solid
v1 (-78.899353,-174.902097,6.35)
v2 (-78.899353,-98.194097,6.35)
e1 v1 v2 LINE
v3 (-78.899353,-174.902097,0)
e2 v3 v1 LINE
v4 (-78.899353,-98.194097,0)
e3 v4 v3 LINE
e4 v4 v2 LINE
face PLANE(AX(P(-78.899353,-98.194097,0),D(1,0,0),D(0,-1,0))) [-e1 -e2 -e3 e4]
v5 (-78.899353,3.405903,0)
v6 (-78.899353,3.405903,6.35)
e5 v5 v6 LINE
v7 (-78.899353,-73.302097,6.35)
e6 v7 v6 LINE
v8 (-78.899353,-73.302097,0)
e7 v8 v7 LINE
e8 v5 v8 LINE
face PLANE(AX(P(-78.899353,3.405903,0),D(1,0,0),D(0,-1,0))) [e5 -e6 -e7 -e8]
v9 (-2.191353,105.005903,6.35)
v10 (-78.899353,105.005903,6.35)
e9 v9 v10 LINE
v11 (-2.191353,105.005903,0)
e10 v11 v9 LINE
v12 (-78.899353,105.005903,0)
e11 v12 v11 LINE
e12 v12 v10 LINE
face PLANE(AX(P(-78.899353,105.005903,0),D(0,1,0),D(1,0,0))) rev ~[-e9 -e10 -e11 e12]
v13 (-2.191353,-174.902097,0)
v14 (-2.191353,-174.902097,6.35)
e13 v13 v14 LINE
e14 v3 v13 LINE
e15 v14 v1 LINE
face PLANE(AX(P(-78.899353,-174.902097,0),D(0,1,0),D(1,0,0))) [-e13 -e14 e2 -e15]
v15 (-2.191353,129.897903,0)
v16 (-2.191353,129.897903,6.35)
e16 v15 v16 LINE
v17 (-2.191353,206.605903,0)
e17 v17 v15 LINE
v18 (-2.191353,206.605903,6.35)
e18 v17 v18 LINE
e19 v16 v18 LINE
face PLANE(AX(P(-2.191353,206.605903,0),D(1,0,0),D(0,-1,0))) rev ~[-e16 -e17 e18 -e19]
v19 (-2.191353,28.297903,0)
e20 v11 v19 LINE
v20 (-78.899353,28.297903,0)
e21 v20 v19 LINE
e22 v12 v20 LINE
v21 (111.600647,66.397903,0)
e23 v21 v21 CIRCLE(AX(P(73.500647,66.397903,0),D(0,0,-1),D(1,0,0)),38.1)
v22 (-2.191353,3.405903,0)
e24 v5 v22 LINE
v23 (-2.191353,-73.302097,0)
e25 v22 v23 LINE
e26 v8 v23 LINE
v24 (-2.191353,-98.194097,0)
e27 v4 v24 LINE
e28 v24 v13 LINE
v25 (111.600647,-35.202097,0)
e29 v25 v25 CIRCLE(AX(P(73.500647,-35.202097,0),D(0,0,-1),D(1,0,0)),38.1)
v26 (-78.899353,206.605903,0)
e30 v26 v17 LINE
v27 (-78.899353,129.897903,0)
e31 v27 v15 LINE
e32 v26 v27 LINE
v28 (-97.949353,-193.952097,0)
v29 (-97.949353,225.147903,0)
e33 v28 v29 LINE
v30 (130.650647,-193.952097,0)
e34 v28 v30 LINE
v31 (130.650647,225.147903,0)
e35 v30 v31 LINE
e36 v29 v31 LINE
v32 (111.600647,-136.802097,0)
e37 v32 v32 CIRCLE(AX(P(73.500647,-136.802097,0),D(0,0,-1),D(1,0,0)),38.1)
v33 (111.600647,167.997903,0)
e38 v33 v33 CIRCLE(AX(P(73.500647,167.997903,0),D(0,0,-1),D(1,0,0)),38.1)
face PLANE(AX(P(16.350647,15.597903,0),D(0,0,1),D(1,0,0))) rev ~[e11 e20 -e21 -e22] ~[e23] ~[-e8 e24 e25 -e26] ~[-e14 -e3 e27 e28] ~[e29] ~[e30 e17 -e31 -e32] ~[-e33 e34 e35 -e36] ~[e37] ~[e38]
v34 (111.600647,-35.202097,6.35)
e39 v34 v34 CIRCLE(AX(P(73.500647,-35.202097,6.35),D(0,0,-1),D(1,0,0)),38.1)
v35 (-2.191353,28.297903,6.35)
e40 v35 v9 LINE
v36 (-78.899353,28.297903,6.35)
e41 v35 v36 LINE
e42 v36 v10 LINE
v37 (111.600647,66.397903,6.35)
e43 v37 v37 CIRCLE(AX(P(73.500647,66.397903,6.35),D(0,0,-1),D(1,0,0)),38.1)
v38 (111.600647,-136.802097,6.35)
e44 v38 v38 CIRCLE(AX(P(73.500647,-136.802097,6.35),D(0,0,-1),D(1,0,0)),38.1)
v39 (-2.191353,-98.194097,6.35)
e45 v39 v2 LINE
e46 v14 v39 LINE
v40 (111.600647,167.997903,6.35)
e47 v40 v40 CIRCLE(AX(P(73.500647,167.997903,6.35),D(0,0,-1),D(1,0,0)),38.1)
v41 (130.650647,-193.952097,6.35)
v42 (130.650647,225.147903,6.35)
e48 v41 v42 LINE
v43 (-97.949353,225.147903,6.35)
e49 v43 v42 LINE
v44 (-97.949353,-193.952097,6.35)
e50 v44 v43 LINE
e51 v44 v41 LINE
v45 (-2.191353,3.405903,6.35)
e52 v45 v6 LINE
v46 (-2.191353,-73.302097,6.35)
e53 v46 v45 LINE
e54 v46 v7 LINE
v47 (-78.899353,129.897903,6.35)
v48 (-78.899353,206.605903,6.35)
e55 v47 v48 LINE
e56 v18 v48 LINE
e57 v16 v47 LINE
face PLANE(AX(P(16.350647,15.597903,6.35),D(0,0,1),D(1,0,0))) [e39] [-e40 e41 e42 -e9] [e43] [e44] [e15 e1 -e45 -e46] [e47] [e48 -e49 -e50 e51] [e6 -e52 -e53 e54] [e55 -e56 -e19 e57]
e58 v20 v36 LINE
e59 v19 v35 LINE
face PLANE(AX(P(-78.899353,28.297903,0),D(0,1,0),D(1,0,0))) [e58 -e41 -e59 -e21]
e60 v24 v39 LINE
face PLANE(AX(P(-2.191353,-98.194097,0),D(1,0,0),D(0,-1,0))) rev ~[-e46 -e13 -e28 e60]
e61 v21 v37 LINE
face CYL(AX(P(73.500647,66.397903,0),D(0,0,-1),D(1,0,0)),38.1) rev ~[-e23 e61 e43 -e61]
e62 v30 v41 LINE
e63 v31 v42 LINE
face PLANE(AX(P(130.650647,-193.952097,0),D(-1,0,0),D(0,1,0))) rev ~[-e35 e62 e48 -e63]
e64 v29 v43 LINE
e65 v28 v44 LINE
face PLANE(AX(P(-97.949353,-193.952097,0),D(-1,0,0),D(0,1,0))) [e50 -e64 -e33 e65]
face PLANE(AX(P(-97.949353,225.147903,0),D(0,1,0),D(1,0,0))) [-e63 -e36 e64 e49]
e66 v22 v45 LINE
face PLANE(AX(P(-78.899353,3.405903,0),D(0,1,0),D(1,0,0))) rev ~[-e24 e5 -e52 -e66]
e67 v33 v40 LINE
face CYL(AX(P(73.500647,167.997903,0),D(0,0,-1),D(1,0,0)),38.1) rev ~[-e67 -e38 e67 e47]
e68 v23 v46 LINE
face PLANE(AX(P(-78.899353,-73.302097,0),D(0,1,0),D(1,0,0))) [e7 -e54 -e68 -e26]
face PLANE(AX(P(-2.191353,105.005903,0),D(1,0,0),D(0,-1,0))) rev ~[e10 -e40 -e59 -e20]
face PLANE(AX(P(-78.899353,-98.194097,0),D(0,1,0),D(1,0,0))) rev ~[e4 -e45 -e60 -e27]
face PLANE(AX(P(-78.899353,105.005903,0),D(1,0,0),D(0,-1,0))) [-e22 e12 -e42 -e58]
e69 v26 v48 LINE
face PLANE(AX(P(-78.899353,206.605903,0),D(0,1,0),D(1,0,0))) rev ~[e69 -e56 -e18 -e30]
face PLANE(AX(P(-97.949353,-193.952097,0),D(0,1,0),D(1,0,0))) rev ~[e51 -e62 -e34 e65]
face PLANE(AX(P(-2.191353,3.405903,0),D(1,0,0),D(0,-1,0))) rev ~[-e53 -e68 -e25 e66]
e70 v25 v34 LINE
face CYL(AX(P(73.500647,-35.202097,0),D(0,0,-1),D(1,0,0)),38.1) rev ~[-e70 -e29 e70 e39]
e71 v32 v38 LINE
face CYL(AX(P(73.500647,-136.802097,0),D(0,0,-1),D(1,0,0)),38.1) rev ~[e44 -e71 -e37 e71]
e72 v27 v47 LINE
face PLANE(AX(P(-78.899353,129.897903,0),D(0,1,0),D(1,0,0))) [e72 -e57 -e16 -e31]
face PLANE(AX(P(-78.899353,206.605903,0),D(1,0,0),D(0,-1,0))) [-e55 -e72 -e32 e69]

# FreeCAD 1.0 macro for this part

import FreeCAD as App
import Part
import Sketcher
from FreeCAD import Vector
Q = App.Units.Quantity

doc = App.newDocument("Part")
body = doc.addObject("PartDesign::Body", "Body")

# Sketch on XY plane
sketch1 = body.newObject("Sketcher::SketchObject", "Sketch")
sketch1.AttachmentSupport = (doc.getObject("XY_Plane"), [""])
sketch1.MapMode = "FlatFace"
sketch1.addGeometry([
    Part.LineSegment(Vector(-98, 225, 0), Vector(-98, -194, 0)),
    Part.LineSegment(Vector(-98, -194, 0), Vector(131, -194, 0)),
    Part.LineSegment(Vector(131, -194, 0), Vector(131, 225, 0)),
    Part.LineSegment(Vector(131, 225, 0), Vector(-98, 225, 0)),
], False)
sketch1.addConstraint([
    Sketcher.Constraint("Coincident", 0, 2, 1, 1),
    Sketcher.Constraint("Coincident", 1, 2, 2, 1),
    Sketcher.Constraint("Coincident", 2, 2, 3, 1),
    Sketcher.Constraint("Coincident", 3, 2, 0, 1),
    Sketcher.Constraint("Vertical", 0),
    Sketcher.Constraint("Horizontal", 1),
    Sketcher.Constraint("Vertical", 2),
    Sketcher.Constraint("Horizontal", 3),
    Sketcher.Constraint("DistanceX", 1, 1, 1, 2, Q("9 in")),
    Sketcher.Constraint("DistanceY", 0, 2, 0, 1, Q("16.5 in")),
    Sketcher.Constraint("DistanceX", 0, 2, -1, 1, 97.949353),
    Sketcher.Constraint("DistanceY", 0, 2, -1, 1, 193.952097),
])
pad1 = body.newObject("PartDesign::Pad", "Pad")
pad1.Profile = sketch1
pad1.Length = Q("0.25 in")

# Sketch on XY plane
sketch2 = body.newObject("Sketcher::SketchObject", "Sketch001")
sketch2.AttachmentSupport = (doc.getObject("XY_Plane"), [""])
sketch2.MapMode = "FlatFace"
sketch2.addGeometry([
    Part.LineSegment(Vector(-79, -175, 0), Vector(-79, -98, 0)),  # 0
    Part.LineSegment(Vector(-79, -98, 0), Vector(-2, -98, 0)),  # 1
    Part.LineSegment(Vector(-2, -98, 0), Vector(-2, -175, 0)),  # 2
    Part.LineSegment(Vector(-2, -175, 0), Vector(-79, -175, 0)),  # 3
    Part.LineSegment(Vector(-79, -73, 0), Vector(-79, 3, 0)),  # 4
    Part.LineSegment(Vector(-79, 3, 0), Vector(-2, 3, 0)),  # 5
    Part.LineSegment(Vector(-2, 3, 0), Vector(-2, -73, 0)),  # 6
    Part.LineSegment(Vector(-2, -73, 0), Vector(-79, -73, 0)),  # 7
    Part.LineSegment(Vector(-79, 28, 0), Vector(-79, 105, 0)),  # 8
    Part.LineSegment(Vector(-79, 105, 0), Vector(-2, 105, 0)),  # 9
    Part.LineSegment(Vector(-2, 105, 0), Vector(-2, 28, 0)),  # 10
    Part.LineSegment(Vector(-2, 28, 0), Vector(-79, 28, 0)),  # 11
    Part.LineSegment(Vector(-79, 130, 0), Vector(-79, 207, 0)),  # 12
    Part.LineSegment(Vector(-79, 207, 0), Vector(-2, 207, 0)),  # 13
    Part.LineSegment(Vector(-2, 207, 0), Vector(-2, 130, 0)),  # 14
    Part.LineSegment(Vector(-2, 130, 0), Vector(-79, 130, 0)),  # 15
], False)
sketch2.addConstraint([
    Sketcher.Constraint("Coincident", 0, 2, 1, 1),
    Sketcher.Constraint("Coincident", 1, 2, 2, 1),
    Sketcher.Constraint("Coincident", 2, 2, 3, 1),
    Sketcher.Constraint("Coincident", 3, 2, 0, 1),
    Sketcher.Constraint("Coincident", 4, 2, 5, 1),
    Sketcher.Constraint("Coincident", 5, 2, 6, 1),
    Sketcher.Constraint("Coincident", 6, 2, 7, 1),
    Sketcher.Constraint("Coincident", 7, 2, 4, 1),
    Sketcher.Constraint("Coincident", 8, 2, 9, 1),
    Sketcher.Constraint("Coincident", 9, 2, 10, 1),
    Sketcher.Constraint("Coincident", 10, 2, 11, 1),
    Sketcher.Constraint("Coincident", 11, 2, 8, 1),
    Sketcher.Constraint("Coincident", 12, 2, 13, 1),
    Sketcher.Constraint("Coincident", 13, 2, 14, 1),
    Sketcher.Constraint("Coincident", 14, 2, 15, 1),
    Sketcher.Constraint("Coincident", 15, 2, 12, 1),
    Sketcher.Constraint("Vertical", 0),
    Sketcher.Constraint("Horizontal", 1),
    Sketcher.Constraint("Vertical", 2),
    Sketcher.Constraint("Horizontal", 3),
    Sketcher.Constraint("Vertical", 4),
    Sketcher.Constraint("Horizontal", 5),
    Sketcher.Constraint("Vertical", 6),
    Sketcher.Constraint("Horizontal", 7),
    Sketcher.Constraint("Vertical", 8),
    Sketcher.Constraint("Horizontal", 9),
    Sketcher.Constraint("Vertical", 10),
    Sketcher.Constraint("Horizontal", 11),
    Sketcher.Constraint("Vertical", 12),
    Sketcher.Constraint("Horizontal", 13),
    Sketcher.Constraint("Vertical", 14),
    Sketcher.Constraint("Horizontal", 15),
    Sketcher.Constraint("Vertical", 3, 2, 4, 2),
    Sketcher.Constraint("Vertical", 2, 2, 5, 2),
    Sketcher.Constraint("Vertical", 7, 2, 8, 2),
    Sketcher.Constraint("Vertical", 6, 2, 9, 2),
    Sketcher.Constraint("Vertical", 11, 2, 12, 2),
    Sketcher.Constraint("Vertical", 10, 2, 13, 2),
    Sketcher.Constraint("Equal", 15, 0),
    Sketcher.Constraint("Equal", 2, 4),
    Sketcher.Constraint("Equal", 6, 8),
    Sketcher.Constraint("Equal", 10, 12),
    Sketcher.Constraint("DistanceY", 0, 2, 4, 2, Q("4 in")),
    Sketcher.Constraint("DistanceY", 4, 2, 8, 2, Q("4 in")),
    Sketcher.Constraint("DistanceY", 8, 2, 12, 2, Q("4 in")),
    Sketcher.Constraint("DistanceX", 1, 1, 1, 2, Q("3.02 in")),
    Sketcher.Constraint("DistanceX", 0, 2, -1, 1, 78.899353),
    Sketcher.Constraint("DistanceY", 0, 2, -1, 1, 98.194097),
])
pocket1 = body.newObject("PartDesign::Pocket", "Pocket")
pocket1.Profile = sketch2
pocket1.Length = Q("1 in")
pocket1.Reversed = True

# Sketch on XY plane
sketch3 = body.newObject("Sketcher::SketchObject", "Sketch002")
sketch3.AttachmentSupport = (doc.getObject("XY_Plane"), [""])
sketch3.MapMode = "FlatFace"
sketch3.addGeometry([
    Part.Circle(Vector(74, -137, 0), Vector(0, 0, 1), 38),
    Part.Circle(Vector(74, -35, 0), Vector(0, 0, 1), 38),
    Part.Circle(Vector(74, 66, 0), Vector(0, 0, 1), 38),
    Part.Circle(Vector(74, 168, 0), Vector(0, 0, 1), 38),
], False)
sketch3.addConstraint([
    Sketcher.Constraint("Equal", 0, 1),
    Sketcher.Constraint("Equal", 1, 2),
    Sketcher.Constraint("Equal", 2, 3),
    Sketcher.Constraint("Vertical", 0, 3, 1, 3),
    Sketcher.Constraint("Vertical", 1, 3, 2, 3),
    Sketcher.Constraint("Vertical", 2, 3, 3, 3),
    Sketcher.Constraint("Diameter", 0, Q("3 in")),
    Sketcher.Constraint("DistanceY", 0, 3, 1, 3, Q("4 in")),
    Sketcher.Constraint("DistanceY", 1, 3, 2, 3, Q("4 in")),
    Sketcher.Constraint("DistanceY", 2, 3, 3, 3, Q("4 in")),
    Sketcher.Constraint("DistanceX", -1, 1, 0, 3, 73.500647),
    Sketcher.Constraint("DistanceY", 0, 3, -1, 1, 136.802097),
])
pocket2 = body.newObject("PartDesign::Pocket", "Pocket001")
pocket2.Profile = sketch3
pocket2.Length = Q("1 in")
pocket2.Reversed = True

doc.recompute()
